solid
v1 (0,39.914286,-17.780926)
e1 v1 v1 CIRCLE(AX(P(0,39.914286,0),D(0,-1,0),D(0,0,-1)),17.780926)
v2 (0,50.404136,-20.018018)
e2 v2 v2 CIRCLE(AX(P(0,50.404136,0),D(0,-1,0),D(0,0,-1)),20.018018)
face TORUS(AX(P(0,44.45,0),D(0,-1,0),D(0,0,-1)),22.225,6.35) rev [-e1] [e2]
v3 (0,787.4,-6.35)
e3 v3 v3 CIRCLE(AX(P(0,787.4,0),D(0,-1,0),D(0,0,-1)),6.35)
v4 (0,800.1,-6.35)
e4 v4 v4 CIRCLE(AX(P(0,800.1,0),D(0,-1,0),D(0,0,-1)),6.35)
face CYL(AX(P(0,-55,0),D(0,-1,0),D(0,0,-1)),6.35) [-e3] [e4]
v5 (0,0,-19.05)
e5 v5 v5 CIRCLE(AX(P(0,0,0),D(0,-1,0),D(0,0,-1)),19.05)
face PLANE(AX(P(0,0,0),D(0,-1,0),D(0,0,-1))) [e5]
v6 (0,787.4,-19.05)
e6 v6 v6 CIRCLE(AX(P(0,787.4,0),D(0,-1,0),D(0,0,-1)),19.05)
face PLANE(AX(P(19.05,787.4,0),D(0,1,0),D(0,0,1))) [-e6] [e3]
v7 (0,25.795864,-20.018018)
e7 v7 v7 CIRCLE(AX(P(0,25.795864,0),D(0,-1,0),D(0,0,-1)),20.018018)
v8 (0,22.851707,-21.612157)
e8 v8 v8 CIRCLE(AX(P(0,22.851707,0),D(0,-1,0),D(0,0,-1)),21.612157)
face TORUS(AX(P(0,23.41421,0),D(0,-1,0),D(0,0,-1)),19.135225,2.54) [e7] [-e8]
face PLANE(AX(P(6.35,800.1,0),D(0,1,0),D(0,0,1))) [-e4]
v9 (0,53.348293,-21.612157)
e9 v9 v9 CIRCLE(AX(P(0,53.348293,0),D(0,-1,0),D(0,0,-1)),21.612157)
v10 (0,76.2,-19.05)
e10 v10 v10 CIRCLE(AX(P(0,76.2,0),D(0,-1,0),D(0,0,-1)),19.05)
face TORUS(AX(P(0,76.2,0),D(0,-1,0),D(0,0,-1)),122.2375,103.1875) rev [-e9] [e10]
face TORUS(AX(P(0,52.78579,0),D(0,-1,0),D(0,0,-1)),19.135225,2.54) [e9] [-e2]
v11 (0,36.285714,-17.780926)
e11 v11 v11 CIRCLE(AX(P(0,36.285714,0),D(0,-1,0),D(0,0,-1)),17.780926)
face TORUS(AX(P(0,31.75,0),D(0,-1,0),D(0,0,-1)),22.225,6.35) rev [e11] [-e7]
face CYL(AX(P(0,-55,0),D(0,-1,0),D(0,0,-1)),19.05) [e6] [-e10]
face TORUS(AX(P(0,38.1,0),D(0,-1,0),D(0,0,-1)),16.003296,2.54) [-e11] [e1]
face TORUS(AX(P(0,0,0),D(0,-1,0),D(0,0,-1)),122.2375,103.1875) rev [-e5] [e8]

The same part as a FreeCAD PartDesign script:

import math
import FreeCAD as App
import Part
import Sketcher
from FreeCAD import Vector
Q = App.Units.Quantity

doc = App.newDocument("Part")
body = doc.addObject("PartDesign::Body", "Body")

sketch1 = body.newObject("Sketcher::SketchObject", "Sketch")
sketch1.AttachmentSupport = (doc.getObject("XY_Plane"), [""])
sketch1.MapMode = "FlatFace"
sketch1.addGeometry([
    Part.LineSegment(Vector(0, 0, 0), Vector(19.1, 0, 0)),
    Part.ArcOfCircle(Part.Circle(Vector(122.2, 0, 0), Vector(0, 0, 1), 103.2), math.radians(167.21), math.radians(180)),
    Part.ArcOfCircle(Part.Circle(Vector(19.1, 23.4, 0), Vector(0, 0, 1), 2.5), math.radians(-13), math.radians(70)),
    Part.ArcOfCircle(Part.Circle(Vector(22.2, 31.8, 0), Vector(0, 0, 1), 6.4), math.radians(180), math.radians(250)),
    Part.ArcOfCircle(Part.Circle(Vector(22.2, 31.7, 0), Vector(0, 0, 1), 6.4), math.radians(134), math.radians(180)),
    Part.ArcOfCircle(Part.Circle(Vector(16, 38.1, 0), Vector(0, 0, 1), 2.5), math.radians(-46), math.radians(46)),
    Part.ArcOfCircle(Part.Circle(Vector(22.2, 44.5, 0), Vector(0, 0, 1), 6.4), math.radians(-180), math.radians(-134)),
    Part.ArcOfCircle(Part.Circle(Vector(22.2, 44.5, 0), Vector(0, 0, 1), 6.4), math.radians(110), math.radians(180)),
    Part.ArcOfCircle(Part.Circle(Vector(19.1, 52.8, 0), Vector(0, 0, 1), 2.5), math.radians(-70), math.radians(13)),
    Part.ArcOfCircle(Part.Circle(Vector(122.2, 76.2, 0), Vector(0, 0, 1), 103.2), math.radians(180), math.radians(192.79)),
    Part.LineSegment(Vector(19.1, 76.2, 0), Vector(19.1, 787.4, 0)),
    Part.LineSegment(Vector(19.1, 787.4, 0), Vector(6.3, 787.4, 0)),
    Part.LineSegment(Vector(6.3, 787.4, 0), Vector(6.3, 800.1, 0)),
    Part.LineSegment(Vector(6.3, 800.1, 0), Vector(0, 800.1, 0)),
    Part.LineSegment(Vector(0, 800.1, 0), Vector(0, 0, 0)),
], False)
sketch1.addConstraint([
    Sketcher.Constraint("Coincident", 0, 2, 1, 2),
    Sketcher.Constraint("Tangent", 1, 1, 2, 1),
    Sketcher.Constraint("Tangent", 2, 2, 3, 2),
    Sketcher.Constraint("Tangent", 3, 1, 4, 2),
    Sketcher.Constraint("Tangent", 4, 1, 5, 1),
    Sketcher.Constraint("Tangent", 5, 2, 6, 2),
    Sketcher.Constraint("Tangent", 6, 1, 7, 2),
    Sketcher.Constraint("Tangent", 7, 1, 8, 1),
    Sketcher.Constraint("Tangent", 8, 2, 9, 2),
    Sketcher.Constraint("Tangent", 9, 1, 10, 1),
    Sketcher.Constraint("Coincident", 10, 2, 11, 1),
    Sketcher.Constraint("Coincident", 11, 2, 12, 1),
    Sketcher.Constraint("Coincident", 12, 2, 13, 1),
    Sketcher.Constraint("Coincident", 13, 2, 14, 1),
    Sketcher.Constraint("Coincident", 14, 2, 0, 1),
    Sketcher.Constraint("Horizontal", 0),
    Sketcher.Constraint("Vertical", 10),
    Sketcher.Constraint("Horizontal", 11),
    Sketcher.Constraint("Vertical", 12),
    Sketcher.Constraint("Horizontal", 13),
    Sketcher.Constraint("Vertical", 14),
    Sketcher.Constraint("Coincident", 14, 2, -1, 1),
    Sketcher.Constraint("Equal", 3, 4),
    Sketcher.Constraint("Equal", 2, 5),
    Sketcher.Constraint("Equal", 4, 6),
    Sketcher.Constraint("Equal", 6, 7),
    Sketcher.Constraint("Equal", 5, 8),
    Sketcher.Constraint("Equal", 1, 9),
    Sketcher.Constraint("PointOnObject", 1, 3, -1),
    Sketcher.Constraint("Horizontal", 4, 3, 3, 1),
    Sketcher.Constraint("Horizontal", 7, 3, 6, 1),
    Sketcher.Constraint("Vertical", 4, 3, 6, 3),
    Sketcher.Constraint("Vertical", 2, 3, 8, 3),
    Sketcher.Constraint("Vertical", 1, 3, 9, 3),
    Sketcher.Constraint("Equal", 11, 12),
    Sketcher.Constraint("Radius", 2, Q("0.1 in")),
    Sketcher.Constraint("DistanceY", 10, 1, 10, 2, Q("28 in")),
    Sketcher.Constraint("Radius", 3, Q("0.25 in")),
    Sketcher.Constraint("DistanceX", 11, 2, 11, 1, Q("0.5 in")),
    Sketcher.Constraint("DistanceY", 14, 2, 14, 1, Q("31.5 in")),
    Sketcher.Constraint("Radius", 1, Q("4.0625 in")),
    Sketcher.Constraint("DistanceX", 0, 1, 0, 2, Q("0.75 in")),
    Sketcher.Constraint("DistanceY", 3, 3, 6, 3, Q("0.5 in")),
    Sketcher.Constraint("DistanceX", -1, 1, 3, 3, Q("0.875 in")),
])
revolution = body.newObject("PartDesign::Revolution", "Revolution")
revolution.Profile = sketch1
revolution.ReferenceAxis = (sketch1, ["V_Axis"])
revolution.Angle = 360

doc.recompute()
